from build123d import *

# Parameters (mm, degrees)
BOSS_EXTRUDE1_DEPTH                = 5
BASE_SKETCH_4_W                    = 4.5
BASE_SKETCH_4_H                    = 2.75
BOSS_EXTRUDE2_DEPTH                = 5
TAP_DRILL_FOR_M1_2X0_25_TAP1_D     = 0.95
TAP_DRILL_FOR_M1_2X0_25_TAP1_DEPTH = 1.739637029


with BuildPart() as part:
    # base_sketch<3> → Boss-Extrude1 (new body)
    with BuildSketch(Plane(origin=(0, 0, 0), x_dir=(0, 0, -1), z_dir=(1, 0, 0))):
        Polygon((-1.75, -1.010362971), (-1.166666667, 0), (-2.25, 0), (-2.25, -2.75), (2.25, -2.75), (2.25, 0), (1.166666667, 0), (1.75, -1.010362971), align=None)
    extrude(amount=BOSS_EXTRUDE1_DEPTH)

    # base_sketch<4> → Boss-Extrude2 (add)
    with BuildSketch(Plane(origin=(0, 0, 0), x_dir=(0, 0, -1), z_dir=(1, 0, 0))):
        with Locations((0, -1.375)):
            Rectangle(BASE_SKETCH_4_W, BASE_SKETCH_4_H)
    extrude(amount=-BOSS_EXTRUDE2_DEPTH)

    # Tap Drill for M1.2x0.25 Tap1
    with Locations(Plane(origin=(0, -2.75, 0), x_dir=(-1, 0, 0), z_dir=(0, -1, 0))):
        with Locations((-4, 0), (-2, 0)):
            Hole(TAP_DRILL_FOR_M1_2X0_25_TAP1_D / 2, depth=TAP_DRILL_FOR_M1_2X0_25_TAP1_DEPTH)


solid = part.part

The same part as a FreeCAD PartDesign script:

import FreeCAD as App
import Part
import Sketcher
from FreeCAD import Vector
Q = App.Units.Quantity


def add_polygon(sketch, points):
    """Adds a closed chain of lines whose ends are joined by coincident constraints."""
    first, n = sketch.GeometryCount, len(points)
    for a, b in zip(points, points[1:] + points[:1]):
        sketch.addGeometry(Part.LineSegment(App.Vector(*a, 0), App.Vector(*b, 0)), False)
    for i in range(n):
        sketch.addConstraint(Sketcher.Constraint("Coincident", first + i, 2, first + (i + 1) % n, 1))

doc = App.newDocument("Part")
body = doc.addObject("PartDesign::Body", "Body")

# Sketch on YZ plane
sketch1 = body.newObject("Sketcher::SketchObject", "Sketch")
sketch1.AttachmentSupport = (doc.getObject("YZ_Plane"), [""])
sketch1.MapMode = "FlatFace"
add_polygon(sketch1, [(-1.010363, 1.75), (0, 1.166667), (0, 2.25), (-2.75, 2.25), (-2.75, -2.25), (0, -2.25), (0, -1.166667), (-1.010363, -1.75)])  # lines 0-7
sketch1.addConstraint(Sketcher.Constraint("Vertical", 1))
sketch1.addConstraint(Sketcher.Constraint("Horizontal", 2))
sketch1.addConstraint(Sketcher.Constraint("Vertical", 3))
sketch1.addConstraint(Sketcher.Constraint("Horizontal", 4))
sketch1.addConstraint(Sketcher.Constraint("Vertical", 5))
sketch1.addConstraint(Sketcher.Constraint("Vertical", 7))
sketch1.addConstraint(Sketcher.Constraint("Symmetric", 1, 2, 4, 2, -1, 1))
sketch1.addConstraint(Sketcher.Constraint("Symmetric", 0, 2, 5, 2, -1))
sketch1.addConstraint(Sketcher.Constraint("Equal", 0, 6))
sketch1.addConstraint(Sketcher.Constraint("Angle", 0, Q("-30 deg")))
sketch1.addConstraint(Sketcher.Constraint("DistanceY", 3, 2, 3, 1, 4.5))
sketch1.addConstraint(Sketcher.Constraint("DistanceY", 7, 1, 7, 2, 3.5))
sketch1.addConstraint(Sketcher.Constraint("DistanceX", 2, 2, 2, 1, 2.75))
sketch1.addConstraint(Sketcher.Constraint("DistanceY", 1, 1, 1, 2, 1.083333))
pad1 = body.newObject("PartDesign::Pad", "Pad")
pad1.Profile = sketch1
pad1.Length = 5

# Sketch on YZ plane
sketch2 = body.newObject("Sketcher::SketchObject", "Sketch001")
sketch2.AttachmentSupport = (doc.getObject("YZ_Plane"), [""])
sketch2.MapMode = "FlatFace"
add_polygon(sketch2, [(0, 2.25), (-2.75, 2.25), (-2.75, -2.25), (0, -2.25)])  # lines 0-3
sketch2.addConstraint(Sketcher.Constraint("Horizontal", 0))
sketch2.addConstraint(Sketcher.Constraint("Vertical", 1))
sketch2.addConstraint(Sketcher.Constraint("Horizontal", 2))
sketch2.addConstraint(Sketcher.Constraint("Vertical", 3))
sketch2.addConstraint(Sketcher.Constraint("Symmetric", 2, 2, 3, 2, -1, 1))
sketch2.addConstraint(Sketcher.Constraint("DistanceY", 1, 2, 1, 1, 4.5))
sketch2.addConstraint(Sketcher.Constraint("DistanceX", 0, 2, 0, 1, 2.75))
pad2 = body.newObject("PartDesign::Pad", "Pad001")
pad2.Profile = sketch2
pad2.Length = 5
pad2.Reversed = True

# Sketch on XZ plane
sketch3 = body.newObject("Sketcher::SketchObject", "Sketch002")
sketch3.AttachmentSupport = (doc.getObject("XZ_Plane"), [""])
sketch3.MapMode = "FlatFace"
sketch3.AttachmentOffset = App.Placement(Vector(0, 0, 2.75), App.Rotation())
sketch3.addGeometry(Part.Circle(Vector(4, 0, 0), Vector(0, 0, 1), 0.475), False)
sketch3.addGeometry(Part.Circle(Vector(2, 0, 0), Vector(0, 0, 1), 0.475), False)
sketch3.addConstraint(Sketcher.Constraint("Equal", 0, 1))
sketch3.addConstraint(Sketcher.Constraint("PointOnObject", 0, 3, -1))
sketch3.addConstraint(Sketcher.Constraint("PointOnObject", 1, 3, -1))
sketch3.addConstraint(Sketcher.Constraint("Diameter", 0, 0.95))
sketch3.addConstraint(Sketcher.Constraint("DistanceX", -1, 1, 0, 3, 4.0))
sketch3.addConstraint(Sketcher.Constraint("DistanceX", -1, 1, 1, 3, 2.0))
doc.recompute()
hole = body.newObject("PartDesign::Hole", "Hole")
hole.Profile = sketch3
hole.ThreadType = "None"
hole.Diameter = 0.95
hole.DepthType = "Dimension"
hole.Depth = 1.739637
hole.DrillPoint = "Flat"

doc.recompute()
